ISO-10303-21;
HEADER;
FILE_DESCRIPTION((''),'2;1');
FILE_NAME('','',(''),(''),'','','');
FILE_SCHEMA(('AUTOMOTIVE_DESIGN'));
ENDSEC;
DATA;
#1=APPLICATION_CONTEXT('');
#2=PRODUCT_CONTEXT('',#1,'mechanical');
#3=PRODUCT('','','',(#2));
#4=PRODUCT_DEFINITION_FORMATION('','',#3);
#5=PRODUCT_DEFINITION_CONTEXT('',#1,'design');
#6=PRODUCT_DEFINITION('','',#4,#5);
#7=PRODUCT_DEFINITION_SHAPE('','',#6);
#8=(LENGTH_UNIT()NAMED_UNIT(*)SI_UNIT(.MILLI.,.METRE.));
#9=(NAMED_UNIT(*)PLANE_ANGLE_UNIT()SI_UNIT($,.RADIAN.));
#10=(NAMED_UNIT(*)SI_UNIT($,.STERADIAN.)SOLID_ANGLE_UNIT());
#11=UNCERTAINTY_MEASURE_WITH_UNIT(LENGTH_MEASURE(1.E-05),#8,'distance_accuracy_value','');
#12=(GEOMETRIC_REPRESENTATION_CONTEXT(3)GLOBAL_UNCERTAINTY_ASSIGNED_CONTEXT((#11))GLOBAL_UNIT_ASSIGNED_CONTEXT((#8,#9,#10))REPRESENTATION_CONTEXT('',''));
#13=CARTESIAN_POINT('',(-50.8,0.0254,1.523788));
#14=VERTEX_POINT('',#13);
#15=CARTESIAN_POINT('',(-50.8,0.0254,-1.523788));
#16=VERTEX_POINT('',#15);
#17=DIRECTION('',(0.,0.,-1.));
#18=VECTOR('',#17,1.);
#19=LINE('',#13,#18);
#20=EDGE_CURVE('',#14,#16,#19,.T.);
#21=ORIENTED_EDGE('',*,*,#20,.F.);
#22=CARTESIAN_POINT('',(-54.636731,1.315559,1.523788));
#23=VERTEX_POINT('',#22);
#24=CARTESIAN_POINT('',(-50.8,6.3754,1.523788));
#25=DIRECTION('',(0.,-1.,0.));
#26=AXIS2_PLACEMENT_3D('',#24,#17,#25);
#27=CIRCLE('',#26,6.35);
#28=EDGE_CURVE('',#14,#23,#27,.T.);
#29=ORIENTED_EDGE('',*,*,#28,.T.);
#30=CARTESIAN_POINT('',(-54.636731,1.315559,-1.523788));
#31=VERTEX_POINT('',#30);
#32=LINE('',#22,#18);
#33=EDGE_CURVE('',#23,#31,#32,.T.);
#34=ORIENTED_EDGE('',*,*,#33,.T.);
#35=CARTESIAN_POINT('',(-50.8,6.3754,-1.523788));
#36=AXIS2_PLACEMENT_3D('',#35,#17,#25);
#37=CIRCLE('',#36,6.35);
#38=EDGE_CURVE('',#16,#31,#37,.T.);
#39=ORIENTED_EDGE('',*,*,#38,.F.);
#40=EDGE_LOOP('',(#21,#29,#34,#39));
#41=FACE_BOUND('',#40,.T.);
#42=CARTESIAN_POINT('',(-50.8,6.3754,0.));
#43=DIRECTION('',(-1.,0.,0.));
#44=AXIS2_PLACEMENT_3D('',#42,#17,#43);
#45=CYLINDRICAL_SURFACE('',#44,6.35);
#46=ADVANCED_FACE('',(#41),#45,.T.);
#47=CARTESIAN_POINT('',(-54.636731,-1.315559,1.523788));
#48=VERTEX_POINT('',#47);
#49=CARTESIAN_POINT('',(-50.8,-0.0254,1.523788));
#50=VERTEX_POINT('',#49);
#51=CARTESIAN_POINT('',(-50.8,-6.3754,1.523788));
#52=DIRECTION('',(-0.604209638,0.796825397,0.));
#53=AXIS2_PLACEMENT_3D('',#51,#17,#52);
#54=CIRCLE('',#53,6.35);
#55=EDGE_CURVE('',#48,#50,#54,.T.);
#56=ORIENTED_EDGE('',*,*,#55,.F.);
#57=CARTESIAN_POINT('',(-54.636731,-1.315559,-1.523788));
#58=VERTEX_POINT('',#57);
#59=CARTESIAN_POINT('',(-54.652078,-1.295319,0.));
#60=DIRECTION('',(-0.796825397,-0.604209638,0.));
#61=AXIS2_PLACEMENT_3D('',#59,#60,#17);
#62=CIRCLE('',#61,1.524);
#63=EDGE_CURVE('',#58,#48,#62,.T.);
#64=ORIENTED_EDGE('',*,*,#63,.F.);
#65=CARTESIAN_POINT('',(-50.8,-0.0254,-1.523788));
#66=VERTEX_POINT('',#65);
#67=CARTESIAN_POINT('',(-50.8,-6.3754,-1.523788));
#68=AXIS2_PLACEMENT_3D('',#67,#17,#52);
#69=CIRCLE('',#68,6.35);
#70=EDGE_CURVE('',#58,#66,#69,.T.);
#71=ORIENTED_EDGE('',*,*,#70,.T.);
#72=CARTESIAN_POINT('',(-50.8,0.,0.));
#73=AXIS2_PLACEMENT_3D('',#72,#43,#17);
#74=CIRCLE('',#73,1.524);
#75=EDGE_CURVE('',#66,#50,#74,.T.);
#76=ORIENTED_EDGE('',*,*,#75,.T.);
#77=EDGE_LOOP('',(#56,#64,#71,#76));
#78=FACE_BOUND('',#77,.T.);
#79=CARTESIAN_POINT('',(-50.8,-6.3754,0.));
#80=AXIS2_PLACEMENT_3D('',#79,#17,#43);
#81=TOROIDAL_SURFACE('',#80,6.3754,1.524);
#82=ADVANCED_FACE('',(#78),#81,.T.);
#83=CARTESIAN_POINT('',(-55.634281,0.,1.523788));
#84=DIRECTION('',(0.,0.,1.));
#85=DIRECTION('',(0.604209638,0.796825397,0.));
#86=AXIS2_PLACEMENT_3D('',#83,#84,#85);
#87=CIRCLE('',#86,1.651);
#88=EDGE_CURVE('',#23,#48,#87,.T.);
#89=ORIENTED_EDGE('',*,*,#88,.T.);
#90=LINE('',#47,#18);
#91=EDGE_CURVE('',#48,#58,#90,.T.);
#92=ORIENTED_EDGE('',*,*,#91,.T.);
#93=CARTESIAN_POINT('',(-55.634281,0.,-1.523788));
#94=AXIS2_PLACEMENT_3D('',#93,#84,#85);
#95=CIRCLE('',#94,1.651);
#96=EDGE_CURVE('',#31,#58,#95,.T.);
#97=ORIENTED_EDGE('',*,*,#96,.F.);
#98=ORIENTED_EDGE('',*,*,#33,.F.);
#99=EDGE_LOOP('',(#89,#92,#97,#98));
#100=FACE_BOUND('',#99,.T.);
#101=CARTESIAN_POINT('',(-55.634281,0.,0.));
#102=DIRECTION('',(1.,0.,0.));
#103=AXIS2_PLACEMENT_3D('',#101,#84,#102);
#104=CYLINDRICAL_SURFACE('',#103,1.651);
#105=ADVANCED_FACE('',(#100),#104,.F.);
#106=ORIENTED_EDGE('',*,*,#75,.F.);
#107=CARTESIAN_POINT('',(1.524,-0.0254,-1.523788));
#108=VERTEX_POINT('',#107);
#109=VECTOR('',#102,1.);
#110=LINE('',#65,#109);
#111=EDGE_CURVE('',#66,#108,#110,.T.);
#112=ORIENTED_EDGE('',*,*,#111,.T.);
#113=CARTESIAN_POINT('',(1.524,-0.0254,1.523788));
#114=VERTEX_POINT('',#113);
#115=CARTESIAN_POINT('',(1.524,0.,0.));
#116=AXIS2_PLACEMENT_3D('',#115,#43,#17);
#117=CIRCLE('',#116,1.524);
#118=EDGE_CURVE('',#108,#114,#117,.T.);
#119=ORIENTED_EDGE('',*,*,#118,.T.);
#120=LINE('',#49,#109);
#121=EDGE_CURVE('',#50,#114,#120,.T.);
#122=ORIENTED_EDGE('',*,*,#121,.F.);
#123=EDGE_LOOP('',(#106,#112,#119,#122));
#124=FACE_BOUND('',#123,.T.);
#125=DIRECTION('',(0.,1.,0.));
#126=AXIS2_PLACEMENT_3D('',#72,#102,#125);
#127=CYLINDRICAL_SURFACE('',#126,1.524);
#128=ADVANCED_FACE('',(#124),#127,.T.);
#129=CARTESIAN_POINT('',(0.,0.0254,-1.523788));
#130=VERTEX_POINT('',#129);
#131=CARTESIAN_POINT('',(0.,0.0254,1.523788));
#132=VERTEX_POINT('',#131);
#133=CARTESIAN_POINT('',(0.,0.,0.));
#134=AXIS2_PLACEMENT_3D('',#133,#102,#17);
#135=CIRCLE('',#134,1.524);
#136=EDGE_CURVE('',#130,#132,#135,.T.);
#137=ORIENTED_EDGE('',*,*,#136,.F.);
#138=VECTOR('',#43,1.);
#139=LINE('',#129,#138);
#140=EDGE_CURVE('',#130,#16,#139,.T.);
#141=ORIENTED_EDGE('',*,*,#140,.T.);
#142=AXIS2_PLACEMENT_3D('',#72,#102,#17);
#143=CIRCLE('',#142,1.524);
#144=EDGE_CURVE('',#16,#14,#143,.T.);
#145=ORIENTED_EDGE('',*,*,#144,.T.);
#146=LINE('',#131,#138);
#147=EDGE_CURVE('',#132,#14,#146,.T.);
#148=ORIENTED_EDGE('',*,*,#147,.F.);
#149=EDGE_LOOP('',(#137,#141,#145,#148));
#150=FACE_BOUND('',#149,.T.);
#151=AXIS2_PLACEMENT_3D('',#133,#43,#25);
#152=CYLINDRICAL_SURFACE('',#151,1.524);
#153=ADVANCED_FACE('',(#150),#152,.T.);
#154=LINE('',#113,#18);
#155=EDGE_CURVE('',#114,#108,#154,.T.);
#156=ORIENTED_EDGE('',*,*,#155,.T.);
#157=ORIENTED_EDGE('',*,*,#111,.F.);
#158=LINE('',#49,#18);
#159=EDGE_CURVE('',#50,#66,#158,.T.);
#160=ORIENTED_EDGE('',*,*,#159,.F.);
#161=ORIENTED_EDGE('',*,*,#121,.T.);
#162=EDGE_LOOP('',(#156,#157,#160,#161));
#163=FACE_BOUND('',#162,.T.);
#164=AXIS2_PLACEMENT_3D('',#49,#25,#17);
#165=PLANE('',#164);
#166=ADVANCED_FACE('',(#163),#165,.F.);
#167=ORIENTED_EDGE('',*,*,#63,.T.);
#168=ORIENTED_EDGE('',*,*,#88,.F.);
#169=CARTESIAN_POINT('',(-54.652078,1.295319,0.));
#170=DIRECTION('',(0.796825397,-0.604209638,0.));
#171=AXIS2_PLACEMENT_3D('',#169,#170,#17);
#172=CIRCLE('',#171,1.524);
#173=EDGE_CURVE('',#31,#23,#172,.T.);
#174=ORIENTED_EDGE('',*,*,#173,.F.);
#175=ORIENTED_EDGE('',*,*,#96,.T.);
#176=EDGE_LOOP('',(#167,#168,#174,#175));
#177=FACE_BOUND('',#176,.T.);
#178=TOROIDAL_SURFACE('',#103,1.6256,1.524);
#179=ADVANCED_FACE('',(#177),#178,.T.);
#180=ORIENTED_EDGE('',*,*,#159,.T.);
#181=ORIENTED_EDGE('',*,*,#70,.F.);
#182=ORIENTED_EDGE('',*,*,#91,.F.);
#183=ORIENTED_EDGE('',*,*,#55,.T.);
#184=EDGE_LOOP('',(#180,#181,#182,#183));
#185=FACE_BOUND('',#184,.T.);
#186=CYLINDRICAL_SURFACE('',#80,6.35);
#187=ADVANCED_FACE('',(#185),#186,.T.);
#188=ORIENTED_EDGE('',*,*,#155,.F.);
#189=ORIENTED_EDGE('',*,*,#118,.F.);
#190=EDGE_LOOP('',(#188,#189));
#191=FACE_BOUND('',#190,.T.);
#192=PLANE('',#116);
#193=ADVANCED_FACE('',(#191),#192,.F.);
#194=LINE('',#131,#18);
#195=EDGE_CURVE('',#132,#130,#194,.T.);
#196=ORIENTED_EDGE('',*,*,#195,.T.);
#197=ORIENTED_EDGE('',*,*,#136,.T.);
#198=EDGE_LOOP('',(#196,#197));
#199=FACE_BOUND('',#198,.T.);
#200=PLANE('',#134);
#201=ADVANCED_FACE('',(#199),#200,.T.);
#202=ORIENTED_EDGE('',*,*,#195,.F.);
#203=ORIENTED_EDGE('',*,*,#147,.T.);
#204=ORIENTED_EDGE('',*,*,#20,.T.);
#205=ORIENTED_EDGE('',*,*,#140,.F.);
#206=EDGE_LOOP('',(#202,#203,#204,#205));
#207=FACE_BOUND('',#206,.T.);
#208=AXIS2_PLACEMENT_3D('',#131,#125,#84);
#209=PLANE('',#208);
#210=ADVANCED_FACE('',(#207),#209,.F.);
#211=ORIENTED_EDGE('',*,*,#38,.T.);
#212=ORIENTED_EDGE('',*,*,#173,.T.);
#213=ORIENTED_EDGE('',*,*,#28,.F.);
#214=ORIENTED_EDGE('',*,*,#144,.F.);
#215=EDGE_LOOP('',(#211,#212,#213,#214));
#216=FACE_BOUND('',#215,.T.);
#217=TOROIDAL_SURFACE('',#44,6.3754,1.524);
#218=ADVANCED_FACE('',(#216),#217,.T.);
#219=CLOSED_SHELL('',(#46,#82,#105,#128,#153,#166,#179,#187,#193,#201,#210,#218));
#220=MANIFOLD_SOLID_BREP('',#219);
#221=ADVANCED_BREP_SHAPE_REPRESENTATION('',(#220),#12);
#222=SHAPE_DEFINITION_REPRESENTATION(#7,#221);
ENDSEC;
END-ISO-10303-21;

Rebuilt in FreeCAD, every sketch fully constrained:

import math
import FreeCAD as App
import Part
import Sketcher

V = App.Vector
Q = App.Units.Quantity

doc = App.newDocument("Part")
body = doc.addObject("PartDesign::Body", "Body")

# Sketch on YZ plane
sketch1 = body.newObject("Sketcher::SketchObject", "Sketch")
sketch1.AttachmentSupport = (doc.getObject("YZ_Plane"), [""])
sketch1.MapMode = "FlatFace"
sketch1.addGeometry([
    Part.LineSegment(V(0, 1.5, 0), V(0, -1.5, 0)),
    Part.ArcOfCircle(Part.Circle(V(0, 0, 0), V(0, 0, 1), 1.5), math.radians(-89), math.radians(89)),
], False)
sketch1.addConstraint([
    Sketcher.Constraint("Coincident", 0, 1, 1, 2),
    Sketcher.Constraint("Coincident", 1, 1, 0, 2),
    Sketcher.Constraint("Vertical", 0),
    Sketcher.Constraint("Coincident", 1, 3, -1, 1),
    Sketcher.Constraint("Radius", 1, Q("0.06 in")),
    Sketcher.Constraint("DistanceX", -1, 1, 0, 1, Q("0.001 in")),
])

# Sketch on XY plane
sketch2 = body.newObject("Sketcher::SketchObject", "Sketch001")
sketch2.AttachmentSupport = (doc.getObject("XY_Plane"), [""])
sketch2.MapMode = "FlatFace"
sketch2.addGeometry([
    Part.LineSegment(V(0, 0, 0), V(-50.8, 0, 0)),  # 0
    Part.ArcOfCircle(Part.Circle(V(-50.8, 6.4, 0), V(0, 0, 1), 6.4), math.radians(-127), math.radians(-90)),  # 1
    Part.ArcOfCircle(Part.Circle(V(-55.6, 0, 0), V(0, 0, 1), 1.7), math.radians(53), math.radians(307)),  # 2
    Part.ArcOfCircle(Part.Circle(V(-50.8, -6.4, 0), V(0, 0, 1), 6.4), math.radians(90), math.radians(127)),  # 3
    Part.LineSegment(V(-50.8, 0, 0), V(1.5, 0, 0)),  # 4
], False)
sketch2.addConstraint([
    Sketcher.Constraint("Tangent", 0, 2, 1, 2),
    Sketcher.Constraint("Tangent", 1, 1, 2, 1),
    Sketcher.Constraint("Tangent", 2, 2, 3, 2),
    Sketcher.Constraint("Tangent", 3, 1, 4, 1),
    Sketcher.Constraint("Horizontal", 0),
    Sketcher.Constraint("Horizontal", 4),
    Sketcher.Constraint("Equal", 1, 3),
    Sketcher.Constraint("Symmetric", 1, 3, 3, 3, -1),
    Sketcher.Constraint("PointOnObject", 0, 1, -2),
    Sketcher.Constraint("DistanceX", 0, 2, 0, 1, Q("2 in")),
    Sketcher.Constraint("Radius", 1, Q("0.25 in")),
    Sketcher.Constraint("Radius", 2, Q("0.065 in")),
    Sketcher.Constraint("DistanceX", 4, 1, 4, 2, Q("2.06 in")),
    Sketcher.Constraint("DistanceY", -1, 1, 1, 3, Q("0.251 in")),
])
doc.recompute()

additivepipe = body.newObject("PartDesign::AdditivePipe", "AdditivePipe")
additivepipe.Profile = sketch1
additivepipe.Spine = (sketch2, ["Edge1", "Edge2", "Edge3", "Edge4", "Edge5"])

doc.recompute()
